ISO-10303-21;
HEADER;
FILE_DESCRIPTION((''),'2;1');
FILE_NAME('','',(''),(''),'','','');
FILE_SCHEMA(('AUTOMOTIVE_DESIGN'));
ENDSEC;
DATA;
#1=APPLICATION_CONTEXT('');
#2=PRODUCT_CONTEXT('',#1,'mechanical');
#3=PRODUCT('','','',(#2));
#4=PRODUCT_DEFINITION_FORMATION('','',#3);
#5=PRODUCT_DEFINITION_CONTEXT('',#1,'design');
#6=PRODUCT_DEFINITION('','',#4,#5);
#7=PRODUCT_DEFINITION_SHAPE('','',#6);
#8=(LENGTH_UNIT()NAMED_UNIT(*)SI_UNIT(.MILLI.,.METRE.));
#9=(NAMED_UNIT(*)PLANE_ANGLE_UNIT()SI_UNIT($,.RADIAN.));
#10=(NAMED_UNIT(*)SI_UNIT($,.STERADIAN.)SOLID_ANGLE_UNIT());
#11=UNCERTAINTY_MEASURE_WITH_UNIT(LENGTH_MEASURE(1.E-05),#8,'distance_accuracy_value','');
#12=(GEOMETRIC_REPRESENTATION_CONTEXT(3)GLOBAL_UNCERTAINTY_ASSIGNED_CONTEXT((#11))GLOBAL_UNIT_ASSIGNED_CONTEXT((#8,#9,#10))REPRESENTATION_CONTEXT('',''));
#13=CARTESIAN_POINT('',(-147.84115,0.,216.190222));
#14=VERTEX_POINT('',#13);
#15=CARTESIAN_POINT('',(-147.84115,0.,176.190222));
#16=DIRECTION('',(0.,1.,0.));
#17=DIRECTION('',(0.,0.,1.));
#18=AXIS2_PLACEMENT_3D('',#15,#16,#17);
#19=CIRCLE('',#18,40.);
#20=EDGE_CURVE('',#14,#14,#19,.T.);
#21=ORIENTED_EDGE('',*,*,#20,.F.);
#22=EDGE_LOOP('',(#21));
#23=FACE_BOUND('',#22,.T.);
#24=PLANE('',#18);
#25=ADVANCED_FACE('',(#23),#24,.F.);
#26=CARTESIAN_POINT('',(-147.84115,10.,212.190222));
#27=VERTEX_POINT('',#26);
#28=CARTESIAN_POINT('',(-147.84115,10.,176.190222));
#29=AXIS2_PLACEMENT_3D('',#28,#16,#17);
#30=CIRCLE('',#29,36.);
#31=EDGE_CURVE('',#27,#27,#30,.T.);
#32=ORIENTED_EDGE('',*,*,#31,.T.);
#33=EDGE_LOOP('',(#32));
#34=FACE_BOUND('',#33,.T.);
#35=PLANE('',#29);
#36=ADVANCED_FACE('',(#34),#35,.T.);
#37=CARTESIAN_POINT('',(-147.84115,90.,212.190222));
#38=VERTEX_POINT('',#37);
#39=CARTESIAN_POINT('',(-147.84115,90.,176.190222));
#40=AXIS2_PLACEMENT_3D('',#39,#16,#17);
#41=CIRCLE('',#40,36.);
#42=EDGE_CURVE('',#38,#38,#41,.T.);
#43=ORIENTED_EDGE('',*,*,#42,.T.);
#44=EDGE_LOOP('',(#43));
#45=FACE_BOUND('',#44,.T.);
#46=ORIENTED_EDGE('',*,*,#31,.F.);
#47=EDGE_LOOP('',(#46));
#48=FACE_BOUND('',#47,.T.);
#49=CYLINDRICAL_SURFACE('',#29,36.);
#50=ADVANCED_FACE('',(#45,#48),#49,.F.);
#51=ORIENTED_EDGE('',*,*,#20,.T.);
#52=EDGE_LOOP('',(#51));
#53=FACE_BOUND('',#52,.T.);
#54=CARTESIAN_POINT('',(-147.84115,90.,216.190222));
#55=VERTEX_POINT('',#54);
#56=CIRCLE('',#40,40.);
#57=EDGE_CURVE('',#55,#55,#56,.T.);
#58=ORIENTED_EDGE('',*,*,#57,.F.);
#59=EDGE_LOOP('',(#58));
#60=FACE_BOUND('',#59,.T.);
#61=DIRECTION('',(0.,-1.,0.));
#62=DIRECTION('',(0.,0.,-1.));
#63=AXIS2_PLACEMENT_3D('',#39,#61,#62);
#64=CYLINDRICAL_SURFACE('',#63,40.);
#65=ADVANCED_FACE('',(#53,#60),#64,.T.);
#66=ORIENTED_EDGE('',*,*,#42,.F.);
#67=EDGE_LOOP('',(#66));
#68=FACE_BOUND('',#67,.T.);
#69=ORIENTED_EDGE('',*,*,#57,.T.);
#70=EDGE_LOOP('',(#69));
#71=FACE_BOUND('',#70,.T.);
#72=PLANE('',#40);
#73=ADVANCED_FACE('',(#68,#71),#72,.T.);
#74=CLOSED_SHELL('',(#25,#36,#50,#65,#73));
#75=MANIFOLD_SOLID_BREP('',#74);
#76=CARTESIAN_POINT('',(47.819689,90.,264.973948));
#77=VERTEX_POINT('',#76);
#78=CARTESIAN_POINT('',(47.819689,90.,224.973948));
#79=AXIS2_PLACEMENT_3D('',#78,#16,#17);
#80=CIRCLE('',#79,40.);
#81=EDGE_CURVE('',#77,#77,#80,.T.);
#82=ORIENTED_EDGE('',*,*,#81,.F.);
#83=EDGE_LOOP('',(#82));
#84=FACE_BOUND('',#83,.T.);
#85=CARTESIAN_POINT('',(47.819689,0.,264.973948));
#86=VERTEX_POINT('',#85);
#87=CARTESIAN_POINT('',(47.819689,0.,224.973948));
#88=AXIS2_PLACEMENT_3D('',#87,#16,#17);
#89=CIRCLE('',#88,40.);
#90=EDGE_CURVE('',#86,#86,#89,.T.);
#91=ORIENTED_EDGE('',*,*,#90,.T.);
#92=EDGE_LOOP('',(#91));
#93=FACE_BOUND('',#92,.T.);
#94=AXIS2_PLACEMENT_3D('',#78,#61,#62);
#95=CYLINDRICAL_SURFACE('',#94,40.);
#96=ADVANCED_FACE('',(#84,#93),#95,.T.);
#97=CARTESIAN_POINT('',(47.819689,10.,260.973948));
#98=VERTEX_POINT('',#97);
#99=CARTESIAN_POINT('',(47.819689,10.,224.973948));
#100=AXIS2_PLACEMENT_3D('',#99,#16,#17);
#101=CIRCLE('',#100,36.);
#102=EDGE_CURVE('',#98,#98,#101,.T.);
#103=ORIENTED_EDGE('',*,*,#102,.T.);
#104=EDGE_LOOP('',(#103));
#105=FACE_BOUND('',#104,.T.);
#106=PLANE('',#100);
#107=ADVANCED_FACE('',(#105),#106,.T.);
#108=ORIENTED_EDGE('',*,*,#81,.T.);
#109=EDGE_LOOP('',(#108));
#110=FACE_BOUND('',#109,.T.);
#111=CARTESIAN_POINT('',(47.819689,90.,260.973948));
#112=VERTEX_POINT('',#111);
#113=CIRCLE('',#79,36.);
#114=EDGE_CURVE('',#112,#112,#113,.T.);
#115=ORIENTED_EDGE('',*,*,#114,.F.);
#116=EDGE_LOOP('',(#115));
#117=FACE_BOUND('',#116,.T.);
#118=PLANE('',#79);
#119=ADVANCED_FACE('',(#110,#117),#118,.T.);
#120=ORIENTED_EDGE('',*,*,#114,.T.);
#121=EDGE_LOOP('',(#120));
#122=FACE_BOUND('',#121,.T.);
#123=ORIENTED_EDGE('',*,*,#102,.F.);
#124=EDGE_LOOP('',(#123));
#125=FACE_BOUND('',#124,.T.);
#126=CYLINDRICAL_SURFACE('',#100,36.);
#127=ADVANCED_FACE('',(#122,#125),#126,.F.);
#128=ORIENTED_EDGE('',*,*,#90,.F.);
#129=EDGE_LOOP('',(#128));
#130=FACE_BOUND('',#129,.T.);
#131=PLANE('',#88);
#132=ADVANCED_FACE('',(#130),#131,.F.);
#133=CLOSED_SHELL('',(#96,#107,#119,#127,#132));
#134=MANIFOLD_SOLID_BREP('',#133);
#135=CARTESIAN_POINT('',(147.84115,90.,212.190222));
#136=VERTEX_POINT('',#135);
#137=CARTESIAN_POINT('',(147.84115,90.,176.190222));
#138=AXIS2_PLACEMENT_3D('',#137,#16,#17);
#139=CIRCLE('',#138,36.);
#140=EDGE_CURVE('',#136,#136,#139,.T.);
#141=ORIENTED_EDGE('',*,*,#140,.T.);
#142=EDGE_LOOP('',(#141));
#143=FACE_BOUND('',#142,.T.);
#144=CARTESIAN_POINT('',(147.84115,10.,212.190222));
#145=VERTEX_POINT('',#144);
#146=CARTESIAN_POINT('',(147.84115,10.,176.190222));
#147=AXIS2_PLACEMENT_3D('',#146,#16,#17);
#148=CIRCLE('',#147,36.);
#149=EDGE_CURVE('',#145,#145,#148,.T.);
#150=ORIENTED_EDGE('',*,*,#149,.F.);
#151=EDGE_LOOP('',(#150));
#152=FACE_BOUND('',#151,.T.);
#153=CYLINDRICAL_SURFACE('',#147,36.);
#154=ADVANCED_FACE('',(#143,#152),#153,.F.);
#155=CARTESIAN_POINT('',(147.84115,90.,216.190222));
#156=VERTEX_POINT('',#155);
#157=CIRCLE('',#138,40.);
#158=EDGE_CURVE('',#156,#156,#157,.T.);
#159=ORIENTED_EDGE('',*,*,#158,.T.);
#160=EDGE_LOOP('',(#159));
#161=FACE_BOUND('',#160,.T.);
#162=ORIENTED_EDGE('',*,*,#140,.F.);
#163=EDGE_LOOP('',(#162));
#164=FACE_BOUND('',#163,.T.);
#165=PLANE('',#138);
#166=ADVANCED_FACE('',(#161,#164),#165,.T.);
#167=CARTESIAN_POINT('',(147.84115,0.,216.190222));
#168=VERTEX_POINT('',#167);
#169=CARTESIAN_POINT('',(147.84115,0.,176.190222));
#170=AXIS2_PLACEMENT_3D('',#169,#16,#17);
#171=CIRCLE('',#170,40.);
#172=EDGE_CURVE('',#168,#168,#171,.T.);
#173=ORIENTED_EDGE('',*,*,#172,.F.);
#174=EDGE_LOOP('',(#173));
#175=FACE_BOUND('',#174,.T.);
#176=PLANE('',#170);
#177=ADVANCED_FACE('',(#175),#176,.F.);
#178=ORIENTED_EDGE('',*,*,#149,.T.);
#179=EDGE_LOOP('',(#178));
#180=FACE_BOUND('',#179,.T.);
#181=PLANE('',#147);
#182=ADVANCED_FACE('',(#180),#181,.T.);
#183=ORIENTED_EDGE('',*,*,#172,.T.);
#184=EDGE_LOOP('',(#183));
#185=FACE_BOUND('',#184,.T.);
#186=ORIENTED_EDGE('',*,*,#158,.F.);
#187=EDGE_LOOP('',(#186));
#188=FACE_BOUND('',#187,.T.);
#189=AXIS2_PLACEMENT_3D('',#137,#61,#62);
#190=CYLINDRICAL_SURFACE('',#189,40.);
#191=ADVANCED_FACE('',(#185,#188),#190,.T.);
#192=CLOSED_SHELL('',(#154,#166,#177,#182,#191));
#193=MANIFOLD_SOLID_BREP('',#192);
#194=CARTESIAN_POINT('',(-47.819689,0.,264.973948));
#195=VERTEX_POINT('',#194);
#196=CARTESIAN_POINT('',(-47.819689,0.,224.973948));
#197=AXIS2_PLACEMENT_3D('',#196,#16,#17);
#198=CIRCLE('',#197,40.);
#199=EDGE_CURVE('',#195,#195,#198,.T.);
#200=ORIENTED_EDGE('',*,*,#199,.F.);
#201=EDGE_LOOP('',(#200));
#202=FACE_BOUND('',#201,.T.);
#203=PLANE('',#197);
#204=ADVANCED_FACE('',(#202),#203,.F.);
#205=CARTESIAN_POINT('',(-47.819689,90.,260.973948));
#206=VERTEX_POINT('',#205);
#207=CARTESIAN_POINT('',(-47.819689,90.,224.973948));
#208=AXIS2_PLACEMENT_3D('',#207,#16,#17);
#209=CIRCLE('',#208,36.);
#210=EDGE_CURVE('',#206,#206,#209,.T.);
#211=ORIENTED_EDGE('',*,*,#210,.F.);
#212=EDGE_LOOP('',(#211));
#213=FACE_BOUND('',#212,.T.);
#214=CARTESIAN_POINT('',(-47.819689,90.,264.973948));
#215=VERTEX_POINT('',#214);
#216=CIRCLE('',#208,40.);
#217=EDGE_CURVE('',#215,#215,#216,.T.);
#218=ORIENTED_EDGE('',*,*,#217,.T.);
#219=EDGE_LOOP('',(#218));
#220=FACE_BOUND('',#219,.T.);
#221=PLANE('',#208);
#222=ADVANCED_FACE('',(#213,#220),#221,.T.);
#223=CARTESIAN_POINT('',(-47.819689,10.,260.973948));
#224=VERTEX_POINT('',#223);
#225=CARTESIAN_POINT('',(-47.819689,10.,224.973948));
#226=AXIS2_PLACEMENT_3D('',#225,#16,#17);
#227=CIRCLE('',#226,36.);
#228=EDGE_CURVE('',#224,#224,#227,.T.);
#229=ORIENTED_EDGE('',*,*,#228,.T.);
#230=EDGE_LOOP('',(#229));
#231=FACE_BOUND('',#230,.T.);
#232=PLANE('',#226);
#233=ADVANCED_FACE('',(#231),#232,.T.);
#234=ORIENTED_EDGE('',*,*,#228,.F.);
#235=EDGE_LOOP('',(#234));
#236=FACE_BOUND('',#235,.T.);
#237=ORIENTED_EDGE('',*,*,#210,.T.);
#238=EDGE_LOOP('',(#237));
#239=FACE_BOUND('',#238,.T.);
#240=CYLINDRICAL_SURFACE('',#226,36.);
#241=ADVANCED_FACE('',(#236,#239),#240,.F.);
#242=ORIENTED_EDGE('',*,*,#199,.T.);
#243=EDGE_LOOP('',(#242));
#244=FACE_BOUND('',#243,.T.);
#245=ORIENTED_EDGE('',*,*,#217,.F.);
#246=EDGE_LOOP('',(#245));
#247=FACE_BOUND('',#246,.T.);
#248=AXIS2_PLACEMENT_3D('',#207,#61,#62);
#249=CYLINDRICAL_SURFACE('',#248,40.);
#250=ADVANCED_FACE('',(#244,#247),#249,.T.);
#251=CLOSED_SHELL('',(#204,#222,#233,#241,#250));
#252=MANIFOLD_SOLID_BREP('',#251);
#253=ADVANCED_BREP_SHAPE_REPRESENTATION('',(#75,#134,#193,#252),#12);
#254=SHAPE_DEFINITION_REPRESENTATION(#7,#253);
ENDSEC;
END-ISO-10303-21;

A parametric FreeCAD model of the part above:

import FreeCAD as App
import Part
import Sketcher
from FreeCAD import Vector
Q = App.Units.Quantity

doc = App.newDocument("Part")
body = doc.addObject("PartDesign::Body", "Body")

# Sketch on XZ plane
sketch1 = doc.addObject("Sketcher::SketchObject", "Sketch")
body.addObject(sketch1)
sketch1.AttachmentSupport = (doc.XZ_Plane, [""])
sketch1.MapMode = "FlatFace"
sketch1.addGeometry(Part.Circle(Vector(-148, 176, 0), Vector(0, 0, 1), 40), False)
sketch1.addConstraint(Sketcher.Constraint("Diameter", 0, Q("80 mm")))
sketch1.addConstraint(Sketcher.Constraint("DistanceX", 0, 3, -1, 1, Q("147.84115 mm")))
sketch1.addConstraint(Sketcher.Constraint("DistanceY", -1, 1, 0, 3, Q("176.190222 mm")))
pad1 = doc.addObject("PartDesign::Pad", "Pad")
body.addObject(pad1)
pad1.Profile = sketch1
pad1.Length = 90
pad1.Reversed = True
body2 = doc.addObject("PartDesign::Body", "Body001")

# Sketch on XZ plane
sketch2 = doc.addObject("Sketcher::SketchObject", "Sketch001")
body2.addObject(sketch2)
sketch2.AttachmentSupport = (doc.getObject("XZ_Plane001"), [""])
sketch2.MapMode = "FlatFace"
sketch2.addGeometry(Part.Circle(Vector(-48, 225, 0), Vector(0, 0, 1), 40), False)
sketch2.addConstraint(Sketcher.Constraint("Diameter", 0, Q("80 mm")))
sketch2.addConstraint(Sketcher.Constraint("DistanceX", 0, 3, -1, 1, Q("47.819689 mm")))
sketch2.addConstraint(Sketcher.Constraint("DistanceY", -1, 1, 0, 3, Q("224.973948 mm")))
pad2 = doc.addObject("PartDesign::Pad", "Pad001")
body2.addObject(pad2)
pad2.Profile = sketch2
pad2.Length = 90
pad2.Reversed = True
body3 = doc.addObject("PartDesign::Body", "Body002")

# Sketch on XZ plane
sketch3 = doc.addObject("Sketcher::SketchObject", "Sketch002")
body3.addObject(sketch3)
sketch3.AttachmentSupport = (doc.getObject("XZ_Plane002"), [""])
sketch3.MapMode = "FlatFace"
sketch3.addGeometry(Part.Circle(Vector(48, 225, 0), Vector(0, 0, 1), 40), False)
sketch3.addConstraint(Sketcher.Constraint("Diameter", 0, Q("80 mm")))
sketch3.addConstraint(Sketcher.Constraint("DistanceX", -1, 1, 0, 3, Q("47.819689 mm")))
sketch3.addConstraint(Sketcher.Constraint("DistanceY", -1, 1, 0, 3, Q("224.973948 mm")))
pad3 = doc.addObject("PartDesign::Pad", "Pad002")
body3.addObject(pad3)
pad3.Profile = sketch3
pad3.Length = 90
pad3.Reversed = True
body4 = doc.addObject("PartDesign::Body", "Body003")

# Sketch on XZ plane
sketch4 = doc.addObject("Sketcher::SketchObject", "Sketch003")
body4.addObject(sketch4)
sketch4.AttachmentSupport = (doc.getObject("XZ_Plane003"), [""])
sketch4.MapMode = "FlatFace"
sketch4.addGeometry(Part.Circle(Vector(148, 176, 0), Vector(0, 0, 1), 40), False)
sketch4.addConstraint(Sketcher.Constraint("Diameter", 0, Q("80 mm")))
sketch4.addConstraint(Sketcher.Constraint("DistanceX", -1, 1, 0, 3, Q("147.84115 mm")))
sketch4.addConstraint(Sketcher.Constraint("DistanceY", -1, 1, 0, 3, Q("176.190222 mm")))
pad4 = doc.addObject("PartDesign::Pad", "Pad003")
body4.addObject(pad4)
pad4.Profile = sketch4
pad4.Length = 90
pad4.Reversed = True
body5 = doc.addObject("PartDesign::Body", "Body004")
body5.AllowCompound = True

# Sketch on XZ plane
sketch5 = doc.addObject("Sketcher::SketchObject", "Sketch004")
body5.addObject(sketch5)
sketch5.AttachmentSupport = (doc.getObject("XZ_Plane004"), [""])
sketch5.MapMode = "FlatFace"
sketch5.AttachmentOffset = App.Placement(Vector(0, 0, -90), App.Rotation())
sketch5.addGeometry(Part.Circle(Vector(-48, 225, 0), Vector(0, 0, 1), 36), False)
sketch5.addGeometry(Part.Circle(Vector(-148, 176, 0), Vector(0, 0, 1), 36), False)
sketch5.addGeometry(Part.Circle(Vector(48, 225, 0), Vector(0, 0, 1), 36), False)
sketch5.addGeometry(Part.Circle(Vector(148, 176, 0), Vector(0, 0, 1), 36), False)
sketch5.addConstraint(Sketcher.Constraint("Equal", 0, 1))
sketch5.addConstraint(Sketcher.Constraint("Equal", 1, 2))
sketch5.addConstraint(Sketcher.Constraint("Equal", 2, 3))
sketch5.addConstraint(Sketcher.Constraint("Symmetric", 0, 3, 2, 3, -2))
sketch5.addConstraint(Sketcher.Constraint("Symmetric", 1, 3, 3, 3, -2))
sketch5.addConstraint(Sketcher.Constraint("Diameter", 0, Q("72 mm")))
sketch5.addConstraint(Sketcher.Constraint("DistanceX", 1, 3, 3, 3, Q("295.6823 mm")))
sketch5.addConstraint(Sketcher.Constraint("DistanceX", 0, 3, -1, 1, Q("47.819689 mm")))
sketch5.addConstraint(Sketcher.Constraint("DistanceY", -1, 1, 0, 3, Q("224.973948 mm")))
sketch5.addConstraint(Sketcher.Constraint("DistanceY", -1, 1, 1, 3, Q("176.190222 mm")))
pad5 = doc.addObject("PartDesign::Pad", "Pad004")
body5.addObject(pad5)
pad5.Profile = sketch5
pad5.Length = 80
doc.recompute()

body6 = doc.addObject("PartDesign::Body", "Body005")
body6.BaseFeature = body5
boolean = doc.addObject("PartDesign::Boolean", "Boolean")
body.addObject(boolean)
boolean.Type = "Cut"
boolean.addObjects([body6])
doc.recompute()

body7 = doc.addObject("PartDesign::Body", "Body006")
body7.BaseFeature = body5
boolean2 = doc.addObject("PartDesign::Boolean", "Boolean001")
body2.addObject(boolean2)
boolean2.Type = "Cut"
boolean2.addObjects([body7])
doc.recompute()

body8 = doc.addObject("PartDesign::Body", "Body007")
body8.BaseFeature = body5
boolean3 = doc.addObject("PartDesign::Boolean", "Boolean002")
body3.addObject(boolean3)
boolean3.Type = "Cut"
boolean3.addObjects([body8])
doc.recompute()

boolean4 = doc.addObject("PartDesign::Boolean", "Boolean003")
body4.addObject(boolean4)
boolean4.Type = "Cut"
boolean4.addObjects([body5])

doc.recompute()
